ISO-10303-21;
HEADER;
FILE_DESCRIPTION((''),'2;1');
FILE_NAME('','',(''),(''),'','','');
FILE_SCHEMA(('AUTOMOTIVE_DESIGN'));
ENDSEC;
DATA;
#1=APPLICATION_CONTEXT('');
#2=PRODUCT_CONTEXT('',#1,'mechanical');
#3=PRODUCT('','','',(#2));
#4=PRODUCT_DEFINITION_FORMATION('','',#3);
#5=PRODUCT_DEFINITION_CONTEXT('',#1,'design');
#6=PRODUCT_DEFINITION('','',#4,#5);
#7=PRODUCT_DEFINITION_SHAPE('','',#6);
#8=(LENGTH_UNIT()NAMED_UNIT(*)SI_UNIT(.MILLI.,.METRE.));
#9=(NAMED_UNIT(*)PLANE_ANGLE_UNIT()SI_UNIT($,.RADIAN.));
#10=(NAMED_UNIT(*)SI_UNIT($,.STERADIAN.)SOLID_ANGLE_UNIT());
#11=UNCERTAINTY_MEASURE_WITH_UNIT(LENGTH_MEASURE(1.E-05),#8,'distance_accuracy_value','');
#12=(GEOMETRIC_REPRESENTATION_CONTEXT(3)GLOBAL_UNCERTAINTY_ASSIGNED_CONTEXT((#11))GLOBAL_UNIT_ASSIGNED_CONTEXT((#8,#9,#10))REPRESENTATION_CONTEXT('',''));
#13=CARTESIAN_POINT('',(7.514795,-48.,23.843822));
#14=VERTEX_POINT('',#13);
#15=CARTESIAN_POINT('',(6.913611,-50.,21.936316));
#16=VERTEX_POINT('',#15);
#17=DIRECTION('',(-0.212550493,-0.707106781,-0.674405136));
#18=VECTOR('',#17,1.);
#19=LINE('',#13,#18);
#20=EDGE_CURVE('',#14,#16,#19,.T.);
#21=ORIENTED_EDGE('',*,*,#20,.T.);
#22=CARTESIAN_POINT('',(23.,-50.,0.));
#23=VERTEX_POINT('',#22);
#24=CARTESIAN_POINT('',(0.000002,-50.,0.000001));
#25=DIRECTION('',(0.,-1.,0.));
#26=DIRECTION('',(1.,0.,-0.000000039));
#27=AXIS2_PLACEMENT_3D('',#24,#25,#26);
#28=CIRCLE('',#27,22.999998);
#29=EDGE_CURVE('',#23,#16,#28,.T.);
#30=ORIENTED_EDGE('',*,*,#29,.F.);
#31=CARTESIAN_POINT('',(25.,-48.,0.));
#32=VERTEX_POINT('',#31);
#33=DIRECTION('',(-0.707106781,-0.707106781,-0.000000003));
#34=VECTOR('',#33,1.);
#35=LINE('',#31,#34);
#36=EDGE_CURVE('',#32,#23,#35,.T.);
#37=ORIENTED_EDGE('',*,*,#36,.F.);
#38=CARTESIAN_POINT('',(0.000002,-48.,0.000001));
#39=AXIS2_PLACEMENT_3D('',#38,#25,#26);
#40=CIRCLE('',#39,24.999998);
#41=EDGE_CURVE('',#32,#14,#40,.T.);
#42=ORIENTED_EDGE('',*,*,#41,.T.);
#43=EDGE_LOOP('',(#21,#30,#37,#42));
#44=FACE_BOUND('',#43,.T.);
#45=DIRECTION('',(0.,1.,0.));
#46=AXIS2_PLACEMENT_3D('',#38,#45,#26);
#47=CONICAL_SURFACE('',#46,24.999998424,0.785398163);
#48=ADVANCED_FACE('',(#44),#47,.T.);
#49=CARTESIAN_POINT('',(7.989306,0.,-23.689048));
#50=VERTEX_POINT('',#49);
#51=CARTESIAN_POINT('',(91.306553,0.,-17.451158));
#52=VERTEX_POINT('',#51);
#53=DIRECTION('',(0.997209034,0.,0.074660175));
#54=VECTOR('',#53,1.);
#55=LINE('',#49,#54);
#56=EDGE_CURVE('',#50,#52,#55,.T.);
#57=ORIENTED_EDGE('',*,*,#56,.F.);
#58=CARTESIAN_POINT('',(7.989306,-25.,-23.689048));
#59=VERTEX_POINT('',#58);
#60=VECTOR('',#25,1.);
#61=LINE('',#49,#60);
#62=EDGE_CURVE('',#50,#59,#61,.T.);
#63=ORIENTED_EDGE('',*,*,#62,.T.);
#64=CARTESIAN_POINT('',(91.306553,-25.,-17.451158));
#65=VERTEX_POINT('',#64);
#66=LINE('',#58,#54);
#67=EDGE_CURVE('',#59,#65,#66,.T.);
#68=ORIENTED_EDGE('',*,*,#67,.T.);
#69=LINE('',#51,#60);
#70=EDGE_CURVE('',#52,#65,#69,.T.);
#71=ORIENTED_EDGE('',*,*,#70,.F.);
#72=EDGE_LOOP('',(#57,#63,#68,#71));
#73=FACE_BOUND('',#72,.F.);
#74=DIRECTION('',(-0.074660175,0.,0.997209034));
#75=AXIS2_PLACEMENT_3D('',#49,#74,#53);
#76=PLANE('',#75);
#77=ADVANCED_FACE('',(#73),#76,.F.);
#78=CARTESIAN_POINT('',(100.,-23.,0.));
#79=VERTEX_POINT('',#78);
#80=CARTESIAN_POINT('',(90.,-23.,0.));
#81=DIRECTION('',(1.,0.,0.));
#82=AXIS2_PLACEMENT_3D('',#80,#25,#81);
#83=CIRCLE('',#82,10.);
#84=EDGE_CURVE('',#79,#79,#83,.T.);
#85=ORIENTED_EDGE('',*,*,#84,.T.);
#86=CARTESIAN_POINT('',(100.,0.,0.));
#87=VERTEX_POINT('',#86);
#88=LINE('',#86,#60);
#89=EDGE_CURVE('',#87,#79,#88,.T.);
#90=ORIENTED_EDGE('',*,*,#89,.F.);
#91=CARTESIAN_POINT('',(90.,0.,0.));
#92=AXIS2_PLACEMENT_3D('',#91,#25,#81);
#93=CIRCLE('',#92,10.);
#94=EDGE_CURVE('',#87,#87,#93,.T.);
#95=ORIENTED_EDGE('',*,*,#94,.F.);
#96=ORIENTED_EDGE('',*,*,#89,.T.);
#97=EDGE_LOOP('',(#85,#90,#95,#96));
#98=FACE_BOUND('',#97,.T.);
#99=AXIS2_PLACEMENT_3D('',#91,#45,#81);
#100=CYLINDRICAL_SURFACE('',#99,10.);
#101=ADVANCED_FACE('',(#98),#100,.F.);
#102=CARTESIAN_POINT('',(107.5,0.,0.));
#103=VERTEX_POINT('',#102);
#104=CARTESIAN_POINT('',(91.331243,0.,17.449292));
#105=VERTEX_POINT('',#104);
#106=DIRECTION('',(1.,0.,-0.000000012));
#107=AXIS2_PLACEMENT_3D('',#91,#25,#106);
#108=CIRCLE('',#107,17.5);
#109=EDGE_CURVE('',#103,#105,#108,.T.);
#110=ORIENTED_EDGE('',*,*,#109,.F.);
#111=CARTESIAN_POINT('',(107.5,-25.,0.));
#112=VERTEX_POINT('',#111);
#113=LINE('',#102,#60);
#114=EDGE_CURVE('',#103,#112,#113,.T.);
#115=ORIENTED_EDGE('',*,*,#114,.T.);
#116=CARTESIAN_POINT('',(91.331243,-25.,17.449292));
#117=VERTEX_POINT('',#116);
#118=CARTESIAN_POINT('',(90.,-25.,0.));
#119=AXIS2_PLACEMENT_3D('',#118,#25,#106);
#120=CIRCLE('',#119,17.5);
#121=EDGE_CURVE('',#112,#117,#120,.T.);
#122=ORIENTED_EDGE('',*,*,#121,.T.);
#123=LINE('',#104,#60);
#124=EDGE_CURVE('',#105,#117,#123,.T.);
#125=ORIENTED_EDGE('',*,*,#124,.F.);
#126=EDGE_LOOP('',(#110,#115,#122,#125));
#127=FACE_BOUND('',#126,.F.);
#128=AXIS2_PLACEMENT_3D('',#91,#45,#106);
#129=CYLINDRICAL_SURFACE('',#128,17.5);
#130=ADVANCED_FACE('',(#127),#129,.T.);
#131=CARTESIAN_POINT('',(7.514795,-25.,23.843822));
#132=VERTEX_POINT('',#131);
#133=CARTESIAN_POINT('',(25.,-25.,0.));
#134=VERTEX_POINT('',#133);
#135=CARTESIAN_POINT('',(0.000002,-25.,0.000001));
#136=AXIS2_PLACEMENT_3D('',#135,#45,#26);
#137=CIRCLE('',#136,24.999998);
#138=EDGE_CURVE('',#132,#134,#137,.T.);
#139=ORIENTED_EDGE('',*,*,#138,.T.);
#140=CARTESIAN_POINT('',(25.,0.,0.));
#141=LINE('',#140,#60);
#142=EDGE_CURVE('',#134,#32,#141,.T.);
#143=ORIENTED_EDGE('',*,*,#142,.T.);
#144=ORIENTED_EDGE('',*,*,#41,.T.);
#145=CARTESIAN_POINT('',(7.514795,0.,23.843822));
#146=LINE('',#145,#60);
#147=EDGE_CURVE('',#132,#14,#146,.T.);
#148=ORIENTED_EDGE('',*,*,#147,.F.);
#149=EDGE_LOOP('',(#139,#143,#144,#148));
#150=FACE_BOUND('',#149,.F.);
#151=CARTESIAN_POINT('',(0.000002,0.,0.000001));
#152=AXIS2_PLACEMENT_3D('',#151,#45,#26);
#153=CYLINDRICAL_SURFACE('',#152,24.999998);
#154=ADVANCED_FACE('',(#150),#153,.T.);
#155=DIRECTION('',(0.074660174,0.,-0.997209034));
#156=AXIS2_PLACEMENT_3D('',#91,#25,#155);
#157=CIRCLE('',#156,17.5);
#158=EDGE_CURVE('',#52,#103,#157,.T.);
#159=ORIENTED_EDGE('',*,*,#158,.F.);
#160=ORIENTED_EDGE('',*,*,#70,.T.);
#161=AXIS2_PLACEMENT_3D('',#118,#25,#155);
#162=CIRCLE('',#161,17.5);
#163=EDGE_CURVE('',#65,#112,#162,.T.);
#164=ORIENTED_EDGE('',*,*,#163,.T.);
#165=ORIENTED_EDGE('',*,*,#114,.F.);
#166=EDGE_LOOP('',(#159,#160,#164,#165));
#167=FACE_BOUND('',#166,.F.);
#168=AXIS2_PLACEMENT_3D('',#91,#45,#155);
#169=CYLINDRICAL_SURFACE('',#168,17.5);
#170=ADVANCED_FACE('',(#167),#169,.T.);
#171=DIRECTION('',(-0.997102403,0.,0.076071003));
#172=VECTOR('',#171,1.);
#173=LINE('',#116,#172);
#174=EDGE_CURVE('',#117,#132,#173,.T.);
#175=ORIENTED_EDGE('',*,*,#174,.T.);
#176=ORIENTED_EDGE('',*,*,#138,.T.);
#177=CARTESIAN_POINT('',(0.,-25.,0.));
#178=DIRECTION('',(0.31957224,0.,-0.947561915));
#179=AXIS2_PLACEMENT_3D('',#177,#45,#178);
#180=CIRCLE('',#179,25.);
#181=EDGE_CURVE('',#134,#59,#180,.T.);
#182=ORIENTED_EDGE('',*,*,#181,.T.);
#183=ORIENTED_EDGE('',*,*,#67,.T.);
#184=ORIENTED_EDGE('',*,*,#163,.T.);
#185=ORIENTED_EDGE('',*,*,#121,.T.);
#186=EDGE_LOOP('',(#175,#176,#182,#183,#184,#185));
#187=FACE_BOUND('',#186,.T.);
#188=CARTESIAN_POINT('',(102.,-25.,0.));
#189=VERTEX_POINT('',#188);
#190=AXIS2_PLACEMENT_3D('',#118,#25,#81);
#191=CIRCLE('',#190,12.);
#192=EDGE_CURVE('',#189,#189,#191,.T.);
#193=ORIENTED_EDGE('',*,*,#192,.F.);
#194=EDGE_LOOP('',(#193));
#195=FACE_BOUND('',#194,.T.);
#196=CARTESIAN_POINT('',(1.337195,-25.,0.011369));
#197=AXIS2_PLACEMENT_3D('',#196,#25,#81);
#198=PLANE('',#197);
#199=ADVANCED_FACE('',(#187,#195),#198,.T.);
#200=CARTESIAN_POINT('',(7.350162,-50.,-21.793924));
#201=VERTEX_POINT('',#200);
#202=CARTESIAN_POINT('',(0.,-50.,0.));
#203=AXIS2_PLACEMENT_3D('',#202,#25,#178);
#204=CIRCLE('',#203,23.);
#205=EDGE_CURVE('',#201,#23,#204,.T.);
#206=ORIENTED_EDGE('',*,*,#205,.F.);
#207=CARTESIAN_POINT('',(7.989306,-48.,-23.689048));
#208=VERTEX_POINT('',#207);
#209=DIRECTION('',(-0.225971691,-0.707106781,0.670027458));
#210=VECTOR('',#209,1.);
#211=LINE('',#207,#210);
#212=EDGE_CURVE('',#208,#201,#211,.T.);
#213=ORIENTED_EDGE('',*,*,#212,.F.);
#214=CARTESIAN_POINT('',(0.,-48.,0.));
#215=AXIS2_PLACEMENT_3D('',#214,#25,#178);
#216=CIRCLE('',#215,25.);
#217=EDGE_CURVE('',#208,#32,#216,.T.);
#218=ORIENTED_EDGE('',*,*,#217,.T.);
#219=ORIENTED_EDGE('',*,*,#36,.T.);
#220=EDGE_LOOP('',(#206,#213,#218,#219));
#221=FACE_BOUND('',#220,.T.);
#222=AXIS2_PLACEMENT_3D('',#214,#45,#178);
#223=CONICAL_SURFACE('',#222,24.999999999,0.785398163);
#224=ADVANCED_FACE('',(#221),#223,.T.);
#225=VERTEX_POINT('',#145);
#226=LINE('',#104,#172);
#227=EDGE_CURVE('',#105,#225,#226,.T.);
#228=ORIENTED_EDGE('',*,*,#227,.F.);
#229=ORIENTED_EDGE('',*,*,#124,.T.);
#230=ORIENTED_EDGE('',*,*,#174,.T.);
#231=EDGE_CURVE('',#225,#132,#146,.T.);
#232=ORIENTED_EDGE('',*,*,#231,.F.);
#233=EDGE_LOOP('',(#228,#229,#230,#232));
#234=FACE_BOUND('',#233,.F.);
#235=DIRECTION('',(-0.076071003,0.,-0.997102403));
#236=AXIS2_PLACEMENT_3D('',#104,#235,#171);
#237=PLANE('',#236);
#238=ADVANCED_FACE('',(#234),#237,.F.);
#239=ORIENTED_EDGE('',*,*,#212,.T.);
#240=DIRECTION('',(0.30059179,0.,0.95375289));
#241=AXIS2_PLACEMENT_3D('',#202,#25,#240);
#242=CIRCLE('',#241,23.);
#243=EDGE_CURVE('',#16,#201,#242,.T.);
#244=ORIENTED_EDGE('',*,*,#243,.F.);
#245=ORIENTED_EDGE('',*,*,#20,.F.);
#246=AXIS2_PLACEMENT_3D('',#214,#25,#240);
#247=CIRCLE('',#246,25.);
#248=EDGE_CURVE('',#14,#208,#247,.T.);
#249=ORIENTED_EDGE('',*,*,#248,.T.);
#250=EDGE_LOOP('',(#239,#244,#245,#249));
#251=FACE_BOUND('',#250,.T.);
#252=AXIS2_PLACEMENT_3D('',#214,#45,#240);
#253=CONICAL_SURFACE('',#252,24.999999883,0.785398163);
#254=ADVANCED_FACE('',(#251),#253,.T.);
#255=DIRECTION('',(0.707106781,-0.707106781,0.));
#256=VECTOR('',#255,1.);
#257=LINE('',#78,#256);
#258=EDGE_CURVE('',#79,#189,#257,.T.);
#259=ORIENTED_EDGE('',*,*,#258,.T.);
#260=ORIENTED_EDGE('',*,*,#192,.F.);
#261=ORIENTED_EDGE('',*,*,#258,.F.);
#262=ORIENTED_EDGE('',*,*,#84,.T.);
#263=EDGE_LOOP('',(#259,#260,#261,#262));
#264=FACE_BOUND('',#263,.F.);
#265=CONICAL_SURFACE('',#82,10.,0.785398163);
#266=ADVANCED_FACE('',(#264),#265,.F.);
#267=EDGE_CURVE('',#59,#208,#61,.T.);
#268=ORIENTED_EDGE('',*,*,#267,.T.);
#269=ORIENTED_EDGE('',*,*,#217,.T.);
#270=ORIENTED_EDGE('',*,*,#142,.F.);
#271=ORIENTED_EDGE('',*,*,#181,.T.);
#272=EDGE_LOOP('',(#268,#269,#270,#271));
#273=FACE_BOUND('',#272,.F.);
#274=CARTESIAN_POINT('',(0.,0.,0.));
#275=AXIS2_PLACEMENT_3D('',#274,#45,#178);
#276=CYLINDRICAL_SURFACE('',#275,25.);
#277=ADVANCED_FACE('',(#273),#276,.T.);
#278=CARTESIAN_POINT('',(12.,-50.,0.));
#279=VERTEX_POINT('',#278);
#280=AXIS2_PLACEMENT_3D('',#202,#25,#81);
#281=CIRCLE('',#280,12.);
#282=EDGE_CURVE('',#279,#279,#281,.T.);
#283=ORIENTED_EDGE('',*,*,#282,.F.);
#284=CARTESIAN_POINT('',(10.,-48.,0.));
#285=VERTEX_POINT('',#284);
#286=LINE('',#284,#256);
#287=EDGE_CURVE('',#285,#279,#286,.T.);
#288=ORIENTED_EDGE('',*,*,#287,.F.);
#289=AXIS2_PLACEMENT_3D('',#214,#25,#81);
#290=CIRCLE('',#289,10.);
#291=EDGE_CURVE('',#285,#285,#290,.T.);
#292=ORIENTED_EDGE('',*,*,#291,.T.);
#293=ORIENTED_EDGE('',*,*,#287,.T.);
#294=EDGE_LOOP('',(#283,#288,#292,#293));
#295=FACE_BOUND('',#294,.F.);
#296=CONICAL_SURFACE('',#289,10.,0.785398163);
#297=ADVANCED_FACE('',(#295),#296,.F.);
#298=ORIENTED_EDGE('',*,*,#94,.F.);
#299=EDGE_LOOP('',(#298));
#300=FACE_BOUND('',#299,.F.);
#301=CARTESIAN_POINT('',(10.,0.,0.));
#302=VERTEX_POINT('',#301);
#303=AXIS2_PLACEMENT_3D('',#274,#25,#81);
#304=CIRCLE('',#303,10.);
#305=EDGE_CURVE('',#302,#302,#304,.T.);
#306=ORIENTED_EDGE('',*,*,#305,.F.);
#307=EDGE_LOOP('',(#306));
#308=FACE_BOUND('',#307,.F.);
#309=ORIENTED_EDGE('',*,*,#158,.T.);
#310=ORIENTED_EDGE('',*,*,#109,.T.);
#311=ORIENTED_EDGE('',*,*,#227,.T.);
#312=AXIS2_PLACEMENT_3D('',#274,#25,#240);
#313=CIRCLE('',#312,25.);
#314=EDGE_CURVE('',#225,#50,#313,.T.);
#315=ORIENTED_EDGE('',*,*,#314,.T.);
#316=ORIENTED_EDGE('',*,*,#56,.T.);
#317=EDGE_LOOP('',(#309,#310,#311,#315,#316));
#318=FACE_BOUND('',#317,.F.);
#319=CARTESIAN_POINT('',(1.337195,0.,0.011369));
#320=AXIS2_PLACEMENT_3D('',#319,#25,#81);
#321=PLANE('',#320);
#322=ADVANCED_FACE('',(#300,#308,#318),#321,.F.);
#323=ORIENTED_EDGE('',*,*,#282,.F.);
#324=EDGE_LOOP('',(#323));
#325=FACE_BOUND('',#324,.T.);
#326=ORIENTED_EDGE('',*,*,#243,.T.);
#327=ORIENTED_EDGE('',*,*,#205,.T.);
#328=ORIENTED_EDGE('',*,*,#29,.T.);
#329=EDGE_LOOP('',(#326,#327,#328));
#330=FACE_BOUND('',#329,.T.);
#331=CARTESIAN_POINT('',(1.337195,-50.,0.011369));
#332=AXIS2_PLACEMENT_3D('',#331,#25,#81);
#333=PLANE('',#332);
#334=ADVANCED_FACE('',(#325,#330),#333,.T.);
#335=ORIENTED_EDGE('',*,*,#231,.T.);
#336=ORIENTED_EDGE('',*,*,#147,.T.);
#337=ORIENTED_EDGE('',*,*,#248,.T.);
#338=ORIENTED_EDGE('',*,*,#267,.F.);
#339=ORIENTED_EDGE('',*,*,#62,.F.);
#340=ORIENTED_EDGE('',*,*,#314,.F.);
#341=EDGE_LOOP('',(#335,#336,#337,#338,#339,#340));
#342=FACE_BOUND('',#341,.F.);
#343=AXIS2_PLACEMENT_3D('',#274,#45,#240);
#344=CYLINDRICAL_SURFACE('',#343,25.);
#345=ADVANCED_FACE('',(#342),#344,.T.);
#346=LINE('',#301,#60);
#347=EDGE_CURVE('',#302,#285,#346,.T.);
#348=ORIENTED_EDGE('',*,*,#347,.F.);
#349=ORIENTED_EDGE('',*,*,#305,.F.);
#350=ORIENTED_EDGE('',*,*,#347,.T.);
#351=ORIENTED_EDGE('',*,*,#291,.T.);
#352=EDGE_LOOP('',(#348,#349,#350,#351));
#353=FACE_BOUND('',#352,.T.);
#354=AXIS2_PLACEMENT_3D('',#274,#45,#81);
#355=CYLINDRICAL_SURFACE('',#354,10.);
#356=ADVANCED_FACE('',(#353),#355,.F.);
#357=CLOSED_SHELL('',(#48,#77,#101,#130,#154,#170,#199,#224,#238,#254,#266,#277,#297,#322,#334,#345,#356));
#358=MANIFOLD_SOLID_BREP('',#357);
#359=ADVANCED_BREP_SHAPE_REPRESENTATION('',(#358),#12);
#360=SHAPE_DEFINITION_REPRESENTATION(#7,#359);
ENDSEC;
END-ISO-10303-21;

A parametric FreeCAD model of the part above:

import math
import FreeCAD as App
import Part
import Sketcher


def edges_at(feature, points):
    """Names of the edges that pass closest to the given points."""
    edges = feature.Shape.Edges
    near = lambda p: min(range(len(edges)), key=lambda i: edges[i].distToShape(Part.Vertex(*p))[0])
    return sorted({f"Edge{near(p) + 1}" for p in points})

doc = App.newDocument("Part")
body = doc.addObject("PartDesign::Body", "Body")

# Sketch on XZ plane
sketch1 = body.newObject("Sketcher::SketchObject", "Sketch")
sketch1.AttachmentSupport = (doc.getObject("XZ_Plane"), [""])
sketch1.MapMode = "FlatFace"
sketch1.addGeometry([
    Part.LineSegment(App.Vector(7.989306, -23.689048, 0), App.Vector(91.306553, -17.451158, 0)),  # 0
    Part.ArcOfCircle(Part.Circle(App.Vector(90, 0, 0), App.Vector(0, 0, 1), 17.5), math.radians(-85.718303), math.radians(0)),  # 1
    Part.ArcOfCircle(Part.Circle(App.Vector(90, 0, 0), App.Vector(0, 0, 1), 17.5), math.radians(-0.000001), math.radians(85.637237)),  # 2
    Part.LineSegment(App.Vector(91.331243, 17.449292, 0), App.Vector(7.514795, 23.843822, 0)),  # 3
    Part.ArcOfCircle(Part.Circle(App.Vector(0, 0, 0), App.Vector(0, 0, 1), 25), math.radians(72.506849), math.radians(288.637057)),  # 4
    Part.Circle(App.Vector(90, 0, 0), App.Vector(0, 0, 1), 10),  # 5
    Part.Circle(App.Vector(0, 0, 0), App.Vector(0, 0, 1), 10),  # 6
], False)
sketch1.addConstraint([
    Sketcher.Constraint("Coincident", 0, 2, 1, 1),
    Sketcher.Constraint("Coincident", 1, 2, 2, 1),
    Sketcher.Constraint("Coincident", 2, 2, 3, 1),
    Sketcher.Constraint("Coincident", 3, 2, 4, 1),
    Sketcher.Constraint("Coincident", 4, 2, 0, 1),
    Sketcher.Constraint("Coincident", 4, 3, -1, 1),
    Sketcher.Constraint("Coincident", 6, 3, -1, 1),
    Sketcher.Constraint("Coincident", 2, 3, 1, 3),
    Sketcher.Constraint("Coincident", 5, 3, 1, 3),
    Sketcher.Constraint("PointOnObject", 1, 3, -1),
    Sketcher.Constraint("PointOnObject", 1, 2, -1),
    Sketcher.Constraint("Diameter", 5, 20.0),
    Sketcher.Constraint("Diameter", 6, 20.0),
    Sketcher.Constraint("Radius", 4, 25.0),
    Sketcher.Constraint("Radius", 1, 17.5),
    Sketcher.Constraint("DistanceX", -1, 1, 1, 3, 90.0),
    Sketcher.Constraint("Distance", 3, 84.06002),
    Sketcher.Constraint("DistanceY", -1, 1, 3, 2, 23.843822),
    Sketcher.Constraint("DistanceY", 0, 2, 1, 3, 17.451158),
    Sketcher.Constraint("DistanceX", 3, 2, 4, 2, 0.474511),
])
pad1 = body.newObject("PartDesign::Pad", "Pad")
pad1.Profile = sketch1
pad1.Length = 25

# Sketch on XZ plane
sketch2 = body.newObject("Sketcher::SketchObject", "Sketch001")
sketch2.AttachmentSupport = (doc.getObject("XZ_Plane"), [""])
sketch2.MapMode = "FlatFace"
sketch2.addGeometry([
    Part.ArcOfCircle(Part.Circle(App.Vector(0, 0, 0), App.Vector(0, 0, 1), 25), math.radians(-71), math.radians(0)),
    Part.ArcOfCircle(Part.Circle(App.Vector(0, 0, 0), App.Vector(0, 0, 1), 25), math.radians(0), math.radians(73)),
    Part.ArcOfCircle(Part.Circle(App.Vector(0, 0, 0), App.Vector(0, 0, 1), 25), math.radians(73), math.radians(289)),
    Part.Circle(App.Vector(0, 0, 0), App.Vector(0, 0, 1), 10),
], False)
sketch2.addConstraint([
    Sketcher.Constraint("Tangent", 0, 2, 1, 1),
    Sketcher.Constraint("Tangent", 1, 2, 2, 1),
    Sketcher.Constraint("Tangent", 2, 2, 0, 1),
    Sketcher.Constraint("Coincident", 0, 3, -1, 1),
    Sketcher.Constraint("Coincident", 3, 3, -1, 1),
    Sketcher.Constraint("PointOnObject", 0, 2, -1),
    Sketcher.Constraint("Diameter", 3, 20.0),
    Sketcher.Constraint("Radius", 0, 25.0),
    Sketcher.Constraint("DistanceY", 1, 3, 1, 2, 23.843821),
    Sketcher.Constraint("DistanceY", 2, 2, 1, 3, 23.689049),
])
pad2 = body.newObject("PartDesign::Pad", "Pad001")
pad2.Profile = sketch2
pad2.Length = 50
doc.recompute()

chamfer = body.newObject("PartDesign::Chamfer", "Chamfer")
chamfer.Base = (pad2, edges_at(pad2, [(-24.999, -50, -0.25), (-10, -50, 0), (80, -25, 0)]))
chamfer.Size = 2

doc.recompute()
